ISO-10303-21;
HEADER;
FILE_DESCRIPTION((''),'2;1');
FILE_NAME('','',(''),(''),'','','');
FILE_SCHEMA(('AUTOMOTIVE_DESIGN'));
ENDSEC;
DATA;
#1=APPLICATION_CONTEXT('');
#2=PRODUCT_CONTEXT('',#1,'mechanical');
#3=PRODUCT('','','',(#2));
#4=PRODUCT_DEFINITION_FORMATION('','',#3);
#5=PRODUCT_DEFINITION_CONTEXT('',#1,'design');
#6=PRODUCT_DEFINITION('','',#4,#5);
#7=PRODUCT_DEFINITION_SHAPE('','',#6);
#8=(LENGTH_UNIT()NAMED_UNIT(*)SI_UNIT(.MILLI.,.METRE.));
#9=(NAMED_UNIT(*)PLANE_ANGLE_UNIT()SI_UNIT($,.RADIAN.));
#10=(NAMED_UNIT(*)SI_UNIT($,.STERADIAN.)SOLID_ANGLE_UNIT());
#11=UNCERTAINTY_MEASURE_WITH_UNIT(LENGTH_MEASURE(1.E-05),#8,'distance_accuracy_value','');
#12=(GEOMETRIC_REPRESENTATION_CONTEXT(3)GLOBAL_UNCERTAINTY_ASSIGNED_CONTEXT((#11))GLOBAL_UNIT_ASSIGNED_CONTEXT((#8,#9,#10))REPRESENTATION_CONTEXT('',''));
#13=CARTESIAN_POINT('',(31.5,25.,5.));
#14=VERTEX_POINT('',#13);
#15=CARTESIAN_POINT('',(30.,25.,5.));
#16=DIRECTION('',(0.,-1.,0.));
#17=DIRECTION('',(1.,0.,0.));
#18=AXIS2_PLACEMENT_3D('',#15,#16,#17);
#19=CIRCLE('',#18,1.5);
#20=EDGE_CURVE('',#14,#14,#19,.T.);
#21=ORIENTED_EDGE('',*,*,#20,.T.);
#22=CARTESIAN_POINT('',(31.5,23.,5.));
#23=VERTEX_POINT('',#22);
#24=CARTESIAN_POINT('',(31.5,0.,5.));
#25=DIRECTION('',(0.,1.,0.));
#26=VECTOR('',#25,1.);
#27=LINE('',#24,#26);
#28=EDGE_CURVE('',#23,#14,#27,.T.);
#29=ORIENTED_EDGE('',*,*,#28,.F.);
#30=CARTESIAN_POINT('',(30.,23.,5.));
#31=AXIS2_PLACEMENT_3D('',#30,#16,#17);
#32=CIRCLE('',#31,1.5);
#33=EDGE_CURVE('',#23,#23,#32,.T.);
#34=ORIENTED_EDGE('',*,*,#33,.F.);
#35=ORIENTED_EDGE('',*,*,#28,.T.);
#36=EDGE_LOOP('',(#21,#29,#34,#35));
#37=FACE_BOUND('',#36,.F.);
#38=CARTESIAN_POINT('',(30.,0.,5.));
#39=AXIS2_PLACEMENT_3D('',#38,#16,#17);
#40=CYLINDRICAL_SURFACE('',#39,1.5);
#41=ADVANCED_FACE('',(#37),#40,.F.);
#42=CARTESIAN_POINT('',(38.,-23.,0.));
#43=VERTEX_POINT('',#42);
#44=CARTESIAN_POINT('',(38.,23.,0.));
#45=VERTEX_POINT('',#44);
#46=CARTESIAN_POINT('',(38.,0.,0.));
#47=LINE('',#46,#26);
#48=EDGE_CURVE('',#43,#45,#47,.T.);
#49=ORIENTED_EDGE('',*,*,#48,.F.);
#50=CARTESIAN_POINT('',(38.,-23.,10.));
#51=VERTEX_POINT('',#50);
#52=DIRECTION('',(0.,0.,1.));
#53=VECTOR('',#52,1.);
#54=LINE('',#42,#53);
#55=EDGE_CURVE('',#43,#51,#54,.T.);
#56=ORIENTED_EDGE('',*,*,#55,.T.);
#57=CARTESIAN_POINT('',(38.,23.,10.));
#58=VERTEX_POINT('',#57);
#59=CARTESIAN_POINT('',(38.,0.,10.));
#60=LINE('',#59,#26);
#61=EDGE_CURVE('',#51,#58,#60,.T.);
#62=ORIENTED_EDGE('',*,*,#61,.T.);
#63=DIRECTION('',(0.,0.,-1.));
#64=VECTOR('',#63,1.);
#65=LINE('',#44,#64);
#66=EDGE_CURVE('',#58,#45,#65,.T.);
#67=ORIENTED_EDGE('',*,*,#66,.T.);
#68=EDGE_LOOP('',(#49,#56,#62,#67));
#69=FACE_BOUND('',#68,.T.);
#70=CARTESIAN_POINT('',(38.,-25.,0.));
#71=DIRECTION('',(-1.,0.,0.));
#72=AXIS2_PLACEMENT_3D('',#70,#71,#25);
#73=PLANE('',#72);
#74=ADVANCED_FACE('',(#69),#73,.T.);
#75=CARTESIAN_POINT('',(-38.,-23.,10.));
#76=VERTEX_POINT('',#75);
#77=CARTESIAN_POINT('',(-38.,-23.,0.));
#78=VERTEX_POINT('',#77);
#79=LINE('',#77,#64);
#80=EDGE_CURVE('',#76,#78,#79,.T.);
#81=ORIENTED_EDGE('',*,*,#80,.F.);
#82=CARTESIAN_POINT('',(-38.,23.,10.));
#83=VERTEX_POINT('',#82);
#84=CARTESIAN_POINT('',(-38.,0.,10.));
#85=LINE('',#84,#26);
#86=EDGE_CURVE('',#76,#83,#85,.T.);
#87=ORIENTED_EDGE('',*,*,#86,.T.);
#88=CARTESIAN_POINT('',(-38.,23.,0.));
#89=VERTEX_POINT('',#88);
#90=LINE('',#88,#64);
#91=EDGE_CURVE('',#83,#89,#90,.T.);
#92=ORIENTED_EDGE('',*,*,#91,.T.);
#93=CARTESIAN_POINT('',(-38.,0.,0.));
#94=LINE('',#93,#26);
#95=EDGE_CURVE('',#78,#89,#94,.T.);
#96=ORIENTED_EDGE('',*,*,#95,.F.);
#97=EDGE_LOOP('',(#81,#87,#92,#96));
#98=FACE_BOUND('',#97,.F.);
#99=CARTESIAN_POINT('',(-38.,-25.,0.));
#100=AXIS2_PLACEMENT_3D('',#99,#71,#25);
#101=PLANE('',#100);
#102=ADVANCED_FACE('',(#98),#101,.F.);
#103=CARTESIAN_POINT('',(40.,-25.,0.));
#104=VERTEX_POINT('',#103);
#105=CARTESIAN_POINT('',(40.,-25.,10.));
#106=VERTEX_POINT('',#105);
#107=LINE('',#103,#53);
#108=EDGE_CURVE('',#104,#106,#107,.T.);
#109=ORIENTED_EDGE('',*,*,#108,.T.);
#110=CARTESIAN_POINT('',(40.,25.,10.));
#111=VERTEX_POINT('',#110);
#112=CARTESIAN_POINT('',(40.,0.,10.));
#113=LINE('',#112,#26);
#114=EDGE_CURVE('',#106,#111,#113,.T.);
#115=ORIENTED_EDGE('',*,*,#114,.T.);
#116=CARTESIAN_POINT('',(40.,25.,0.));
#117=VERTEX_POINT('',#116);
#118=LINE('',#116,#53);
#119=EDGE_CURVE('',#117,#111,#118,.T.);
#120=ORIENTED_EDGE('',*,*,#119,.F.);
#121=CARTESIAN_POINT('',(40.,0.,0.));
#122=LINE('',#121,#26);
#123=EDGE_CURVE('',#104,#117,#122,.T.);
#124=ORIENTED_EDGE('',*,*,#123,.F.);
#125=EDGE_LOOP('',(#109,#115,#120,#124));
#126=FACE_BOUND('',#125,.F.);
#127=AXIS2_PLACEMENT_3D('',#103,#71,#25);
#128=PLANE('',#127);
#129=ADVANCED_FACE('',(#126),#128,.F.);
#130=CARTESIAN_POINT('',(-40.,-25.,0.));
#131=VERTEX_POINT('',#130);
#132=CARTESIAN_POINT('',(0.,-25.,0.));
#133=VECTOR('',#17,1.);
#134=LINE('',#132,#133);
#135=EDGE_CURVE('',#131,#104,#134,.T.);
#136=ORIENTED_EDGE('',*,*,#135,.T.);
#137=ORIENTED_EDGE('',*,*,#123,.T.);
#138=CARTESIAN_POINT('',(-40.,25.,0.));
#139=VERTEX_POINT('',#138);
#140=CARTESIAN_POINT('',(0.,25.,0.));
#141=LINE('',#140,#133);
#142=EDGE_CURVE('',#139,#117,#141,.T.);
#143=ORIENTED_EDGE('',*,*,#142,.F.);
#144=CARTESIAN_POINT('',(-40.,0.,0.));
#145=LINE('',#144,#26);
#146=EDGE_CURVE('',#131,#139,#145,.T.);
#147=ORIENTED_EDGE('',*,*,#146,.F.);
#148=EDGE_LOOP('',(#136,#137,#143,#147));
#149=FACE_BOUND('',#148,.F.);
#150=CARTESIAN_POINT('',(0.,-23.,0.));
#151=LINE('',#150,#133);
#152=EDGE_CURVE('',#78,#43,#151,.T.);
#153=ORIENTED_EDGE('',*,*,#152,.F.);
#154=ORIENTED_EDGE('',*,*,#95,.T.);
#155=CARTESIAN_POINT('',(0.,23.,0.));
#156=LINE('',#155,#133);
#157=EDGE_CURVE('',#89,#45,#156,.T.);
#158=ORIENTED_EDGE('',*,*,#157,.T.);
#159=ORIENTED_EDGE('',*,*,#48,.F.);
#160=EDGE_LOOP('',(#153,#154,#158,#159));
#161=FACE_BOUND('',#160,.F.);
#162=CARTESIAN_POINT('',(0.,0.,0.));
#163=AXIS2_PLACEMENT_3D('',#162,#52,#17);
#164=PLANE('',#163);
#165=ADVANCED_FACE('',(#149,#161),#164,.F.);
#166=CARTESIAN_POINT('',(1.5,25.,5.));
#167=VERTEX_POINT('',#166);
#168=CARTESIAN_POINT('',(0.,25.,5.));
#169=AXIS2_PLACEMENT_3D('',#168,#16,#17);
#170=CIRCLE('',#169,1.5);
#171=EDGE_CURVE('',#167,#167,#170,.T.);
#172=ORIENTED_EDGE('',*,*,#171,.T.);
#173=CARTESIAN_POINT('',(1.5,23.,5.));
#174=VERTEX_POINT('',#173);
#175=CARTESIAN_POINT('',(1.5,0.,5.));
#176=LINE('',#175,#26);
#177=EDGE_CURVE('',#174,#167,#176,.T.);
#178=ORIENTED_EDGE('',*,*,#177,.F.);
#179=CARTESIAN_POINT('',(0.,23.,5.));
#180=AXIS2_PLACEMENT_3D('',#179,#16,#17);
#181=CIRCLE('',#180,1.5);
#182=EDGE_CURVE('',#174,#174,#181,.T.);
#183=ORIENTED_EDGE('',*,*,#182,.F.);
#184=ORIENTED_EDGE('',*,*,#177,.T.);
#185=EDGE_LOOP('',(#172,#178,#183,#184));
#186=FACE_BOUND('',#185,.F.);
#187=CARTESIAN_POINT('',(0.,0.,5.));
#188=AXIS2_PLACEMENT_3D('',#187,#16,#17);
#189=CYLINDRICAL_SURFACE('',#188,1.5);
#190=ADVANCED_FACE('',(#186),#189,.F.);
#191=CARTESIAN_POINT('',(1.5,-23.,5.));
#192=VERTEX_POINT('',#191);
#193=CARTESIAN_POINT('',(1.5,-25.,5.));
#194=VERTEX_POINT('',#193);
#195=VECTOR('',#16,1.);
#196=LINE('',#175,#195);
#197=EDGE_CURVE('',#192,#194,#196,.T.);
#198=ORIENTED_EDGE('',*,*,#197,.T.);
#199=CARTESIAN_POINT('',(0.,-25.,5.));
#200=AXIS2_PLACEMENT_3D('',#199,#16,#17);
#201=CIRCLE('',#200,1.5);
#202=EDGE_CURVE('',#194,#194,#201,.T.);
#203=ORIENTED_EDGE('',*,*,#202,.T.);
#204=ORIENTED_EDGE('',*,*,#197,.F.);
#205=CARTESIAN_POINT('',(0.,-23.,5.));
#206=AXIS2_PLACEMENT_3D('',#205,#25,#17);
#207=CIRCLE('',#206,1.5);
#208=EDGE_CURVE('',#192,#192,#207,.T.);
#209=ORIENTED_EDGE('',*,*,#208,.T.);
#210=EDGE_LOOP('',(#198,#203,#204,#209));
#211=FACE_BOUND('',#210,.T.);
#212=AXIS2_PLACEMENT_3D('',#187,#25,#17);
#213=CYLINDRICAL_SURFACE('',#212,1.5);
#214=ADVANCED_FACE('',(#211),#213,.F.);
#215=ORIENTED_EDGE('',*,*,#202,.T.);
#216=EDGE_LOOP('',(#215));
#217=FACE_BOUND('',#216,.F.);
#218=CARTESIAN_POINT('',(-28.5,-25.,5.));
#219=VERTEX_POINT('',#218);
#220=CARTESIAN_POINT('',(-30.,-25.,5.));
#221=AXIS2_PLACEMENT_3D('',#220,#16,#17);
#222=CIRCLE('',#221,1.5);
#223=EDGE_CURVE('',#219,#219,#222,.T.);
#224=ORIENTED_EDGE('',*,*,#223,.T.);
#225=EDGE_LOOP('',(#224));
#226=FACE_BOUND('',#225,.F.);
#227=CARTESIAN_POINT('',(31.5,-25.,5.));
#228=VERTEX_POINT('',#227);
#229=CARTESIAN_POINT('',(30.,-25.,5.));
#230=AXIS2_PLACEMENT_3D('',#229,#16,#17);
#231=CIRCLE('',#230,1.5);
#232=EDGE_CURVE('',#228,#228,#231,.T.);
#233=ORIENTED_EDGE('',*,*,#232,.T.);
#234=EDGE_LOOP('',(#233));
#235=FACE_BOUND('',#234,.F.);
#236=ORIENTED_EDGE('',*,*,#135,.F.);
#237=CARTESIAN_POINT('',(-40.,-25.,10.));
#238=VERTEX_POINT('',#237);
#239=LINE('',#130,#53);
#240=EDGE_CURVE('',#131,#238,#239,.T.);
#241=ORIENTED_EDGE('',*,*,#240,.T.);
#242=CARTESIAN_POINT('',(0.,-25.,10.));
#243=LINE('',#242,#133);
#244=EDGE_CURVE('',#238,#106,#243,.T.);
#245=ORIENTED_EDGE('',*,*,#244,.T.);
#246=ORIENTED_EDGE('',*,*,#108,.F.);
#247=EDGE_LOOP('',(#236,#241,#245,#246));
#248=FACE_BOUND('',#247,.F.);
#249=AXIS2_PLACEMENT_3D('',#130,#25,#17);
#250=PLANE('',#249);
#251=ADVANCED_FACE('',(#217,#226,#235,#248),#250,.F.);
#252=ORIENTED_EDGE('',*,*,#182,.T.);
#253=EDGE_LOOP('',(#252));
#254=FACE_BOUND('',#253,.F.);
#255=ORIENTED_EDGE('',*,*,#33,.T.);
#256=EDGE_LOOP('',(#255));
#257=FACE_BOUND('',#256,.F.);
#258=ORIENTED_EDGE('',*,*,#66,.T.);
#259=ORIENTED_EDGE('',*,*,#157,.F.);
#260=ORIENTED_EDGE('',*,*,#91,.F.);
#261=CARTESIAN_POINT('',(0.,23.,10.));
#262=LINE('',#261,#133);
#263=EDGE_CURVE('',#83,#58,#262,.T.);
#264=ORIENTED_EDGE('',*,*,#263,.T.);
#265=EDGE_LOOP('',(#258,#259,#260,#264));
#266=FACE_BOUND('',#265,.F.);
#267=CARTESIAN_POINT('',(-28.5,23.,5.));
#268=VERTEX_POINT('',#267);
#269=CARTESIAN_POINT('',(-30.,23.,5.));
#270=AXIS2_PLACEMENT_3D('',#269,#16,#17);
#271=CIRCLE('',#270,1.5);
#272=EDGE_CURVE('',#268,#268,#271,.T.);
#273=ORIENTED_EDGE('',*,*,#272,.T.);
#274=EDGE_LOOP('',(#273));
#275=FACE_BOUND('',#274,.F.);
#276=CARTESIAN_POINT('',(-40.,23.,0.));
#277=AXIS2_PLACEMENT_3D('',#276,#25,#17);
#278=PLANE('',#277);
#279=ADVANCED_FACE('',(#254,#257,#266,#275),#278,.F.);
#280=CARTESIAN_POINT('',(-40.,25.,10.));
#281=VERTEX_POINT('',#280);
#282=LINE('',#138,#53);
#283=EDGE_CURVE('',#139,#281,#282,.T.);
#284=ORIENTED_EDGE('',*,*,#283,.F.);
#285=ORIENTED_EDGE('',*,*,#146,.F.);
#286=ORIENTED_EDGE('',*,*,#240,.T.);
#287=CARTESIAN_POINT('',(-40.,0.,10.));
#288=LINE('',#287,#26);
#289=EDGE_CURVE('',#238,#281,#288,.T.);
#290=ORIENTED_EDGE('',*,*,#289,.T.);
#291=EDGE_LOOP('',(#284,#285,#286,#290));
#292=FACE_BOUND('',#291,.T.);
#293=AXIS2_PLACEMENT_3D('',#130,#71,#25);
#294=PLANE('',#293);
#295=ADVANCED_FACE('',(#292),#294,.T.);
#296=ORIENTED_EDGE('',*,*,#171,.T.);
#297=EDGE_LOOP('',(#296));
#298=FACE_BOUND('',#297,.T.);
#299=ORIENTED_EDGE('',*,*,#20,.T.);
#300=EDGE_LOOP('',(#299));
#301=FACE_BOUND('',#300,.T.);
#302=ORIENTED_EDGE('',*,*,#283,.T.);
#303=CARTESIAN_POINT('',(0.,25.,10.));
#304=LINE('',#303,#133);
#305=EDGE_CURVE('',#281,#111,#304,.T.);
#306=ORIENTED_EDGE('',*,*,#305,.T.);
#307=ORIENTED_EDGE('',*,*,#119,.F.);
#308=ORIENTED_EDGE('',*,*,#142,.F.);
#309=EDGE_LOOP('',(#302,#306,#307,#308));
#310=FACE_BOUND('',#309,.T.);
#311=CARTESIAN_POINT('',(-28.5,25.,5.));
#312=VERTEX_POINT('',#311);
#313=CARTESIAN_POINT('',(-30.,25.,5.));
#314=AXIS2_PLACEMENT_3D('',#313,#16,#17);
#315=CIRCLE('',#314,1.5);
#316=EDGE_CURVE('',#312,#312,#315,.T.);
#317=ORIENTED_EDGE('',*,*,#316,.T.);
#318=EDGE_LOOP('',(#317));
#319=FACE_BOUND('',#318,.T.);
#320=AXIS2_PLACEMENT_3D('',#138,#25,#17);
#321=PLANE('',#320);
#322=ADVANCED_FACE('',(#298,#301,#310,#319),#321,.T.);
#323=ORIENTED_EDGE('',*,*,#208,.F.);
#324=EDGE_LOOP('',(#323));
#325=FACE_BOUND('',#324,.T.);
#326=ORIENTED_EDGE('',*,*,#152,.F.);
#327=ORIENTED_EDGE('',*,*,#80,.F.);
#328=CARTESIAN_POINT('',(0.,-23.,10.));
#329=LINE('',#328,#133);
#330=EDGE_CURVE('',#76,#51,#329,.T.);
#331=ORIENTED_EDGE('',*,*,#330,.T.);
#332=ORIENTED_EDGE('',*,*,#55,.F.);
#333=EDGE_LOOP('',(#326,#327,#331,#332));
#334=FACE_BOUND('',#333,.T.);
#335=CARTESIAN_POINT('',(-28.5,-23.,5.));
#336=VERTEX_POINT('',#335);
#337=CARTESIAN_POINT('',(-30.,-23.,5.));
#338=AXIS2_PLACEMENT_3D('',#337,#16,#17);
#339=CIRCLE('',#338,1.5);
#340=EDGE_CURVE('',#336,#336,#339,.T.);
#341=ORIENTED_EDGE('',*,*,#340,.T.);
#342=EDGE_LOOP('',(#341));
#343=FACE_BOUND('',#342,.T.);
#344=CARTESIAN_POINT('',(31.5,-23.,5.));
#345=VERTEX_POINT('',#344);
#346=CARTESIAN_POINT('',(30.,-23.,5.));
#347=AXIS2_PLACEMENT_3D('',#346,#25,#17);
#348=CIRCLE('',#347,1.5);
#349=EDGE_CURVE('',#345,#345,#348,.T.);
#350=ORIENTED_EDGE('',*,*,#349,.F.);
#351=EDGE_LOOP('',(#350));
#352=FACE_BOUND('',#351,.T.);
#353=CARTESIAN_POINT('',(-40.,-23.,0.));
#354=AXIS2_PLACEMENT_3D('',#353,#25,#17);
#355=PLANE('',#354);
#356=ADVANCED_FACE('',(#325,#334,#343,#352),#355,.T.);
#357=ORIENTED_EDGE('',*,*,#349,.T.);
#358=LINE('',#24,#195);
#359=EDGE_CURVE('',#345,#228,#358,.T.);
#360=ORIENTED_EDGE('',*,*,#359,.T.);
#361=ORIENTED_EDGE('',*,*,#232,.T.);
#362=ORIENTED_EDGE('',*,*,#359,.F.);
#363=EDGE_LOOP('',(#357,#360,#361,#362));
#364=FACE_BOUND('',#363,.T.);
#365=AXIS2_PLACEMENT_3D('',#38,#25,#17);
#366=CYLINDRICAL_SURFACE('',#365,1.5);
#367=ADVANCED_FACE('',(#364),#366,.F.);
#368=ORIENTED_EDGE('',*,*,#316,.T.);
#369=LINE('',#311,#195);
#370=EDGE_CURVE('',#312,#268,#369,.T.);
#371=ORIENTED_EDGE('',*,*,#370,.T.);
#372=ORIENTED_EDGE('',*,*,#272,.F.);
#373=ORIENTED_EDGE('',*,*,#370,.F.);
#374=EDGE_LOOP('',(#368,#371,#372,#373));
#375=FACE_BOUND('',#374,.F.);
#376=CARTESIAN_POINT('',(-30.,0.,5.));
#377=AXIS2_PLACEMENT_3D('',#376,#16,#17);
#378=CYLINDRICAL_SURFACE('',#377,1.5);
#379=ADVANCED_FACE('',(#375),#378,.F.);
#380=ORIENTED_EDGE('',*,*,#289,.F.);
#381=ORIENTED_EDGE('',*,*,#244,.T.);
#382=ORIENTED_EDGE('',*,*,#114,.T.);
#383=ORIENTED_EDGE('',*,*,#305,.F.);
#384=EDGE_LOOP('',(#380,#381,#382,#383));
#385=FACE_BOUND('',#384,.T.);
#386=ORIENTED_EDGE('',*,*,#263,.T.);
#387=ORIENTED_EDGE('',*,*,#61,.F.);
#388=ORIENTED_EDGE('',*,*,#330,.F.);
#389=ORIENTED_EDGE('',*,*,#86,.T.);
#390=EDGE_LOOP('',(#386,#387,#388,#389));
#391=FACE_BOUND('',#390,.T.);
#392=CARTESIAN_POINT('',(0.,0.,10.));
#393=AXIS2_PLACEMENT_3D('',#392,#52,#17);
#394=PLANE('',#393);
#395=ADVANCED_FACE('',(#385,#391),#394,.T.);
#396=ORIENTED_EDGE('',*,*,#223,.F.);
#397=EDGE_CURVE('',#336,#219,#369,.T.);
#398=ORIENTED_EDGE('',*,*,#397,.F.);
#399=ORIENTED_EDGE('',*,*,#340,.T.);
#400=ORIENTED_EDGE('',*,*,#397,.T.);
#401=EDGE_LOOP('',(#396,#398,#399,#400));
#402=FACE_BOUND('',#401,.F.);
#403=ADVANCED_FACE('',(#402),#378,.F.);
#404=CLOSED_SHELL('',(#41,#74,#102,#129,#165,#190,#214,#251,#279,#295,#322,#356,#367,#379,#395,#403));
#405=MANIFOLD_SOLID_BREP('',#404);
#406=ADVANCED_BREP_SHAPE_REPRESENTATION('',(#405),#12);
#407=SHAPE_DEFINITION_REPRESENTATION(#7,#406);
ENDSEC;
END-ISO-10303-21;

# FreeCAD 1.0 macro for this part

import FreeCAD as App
import Part
import Sketcher
from FreeCAD import Vector
Q = App.Units.Quantity


def faces_at(feature, points):
    """Names of the faces that lie closest to the given points."""
    faces = feature.Shape.Faces
    near = lambda p: min(range(len(faces)), key=lambda i: faces[i].distToShape(Part.Vertex(*p))[0])
    return sorted({f"Face{near(p) + 1}" for p in points})

doc = App.newDocument("Part")
body = doc.addObject("PartDesign::Body", "Body")

sketch1 = doc.addObject("Sketcher::SketchObject", "Sketch")
body.addObject(sketch1)
sketch1.AttachmentSupport = (doc.XY_Plane, [""])
sketch1.MapMode = "FlatFace"
sketch1.addGeometry([
    Part.LineSegment(Vector(-40, 25, 0), Vector(-40, -25, 0)),
    Part.LineSegment(Vector(-40, -25, 0), Vector(40, -25, 0)),
    Part.LineSegment(Vector(40, -25, 0), Vector(40, 25, 0)),
    Part.LineSegment(Vector(40, 25, 0), Vector(-40, 25, 0)),
], False)
sketch1.addConstraint([
    Sketcher.Constraint("Coincident", 0, 2, 1, 1),
    Sketcher.Constraint("Coincident", 1, 2, 2, 1),
    Sketcher.Constraint("Coincident", 2, 2, 3, 1),
    Sketcher.Constraint("Coincident", 3, 2, 0, 1),
    Sketcher.Constraint("Vertical", 0),
    Sketcher.Constraint("Horizontal", 1),
    Sketcher.Constraint("Vertical", 2),
    Sketcher.Constraint("Horizontal", 3),
    Sketcher.Constraint("Symmetric", 0, 2, 2, 2, -1, 1),
    Sketcher.Constraint("DistanceX", 1, 1, 1, 2, Q("80 mm")),
    Sketcher.Constraint("DistanceY", 0, 2, 0, 1, Q("50 mm")),
])
pad1 = doc.addObject("PartDesign::Pad", "Pad")
body.addObject(pad1)
pad1.Profile = sketch1
pad1.Length = 10
doc.recompute()

thickness = doc.addObject("PartDesign::Thickness", "Thickness")
body.addObject(thickness)
thickness.Base = (pad1, faces_at(pad1, [(0, 0, 10), (0, 0, 0)]))
thickness.Value = 2
thickness.Reversed = True
thickness.Join = "Arc"

sketch2 = doc.addObject("Sketcher::SketchObject", "Sketch001")
body.addObject(sketch2)
sketch2.AttachmentSupport = (doc.XZ_Plane, [""])
sketch2.MapMode = "FlatFace"
sketch2.addGeometry([
    Part.Circle(Vector(0, 5, 0), Vector(0, 0, 1), 1.5),
    Part.Circle(Vector(30, 5, 0), Vector(0, 0, 1), 1.5),
    Part.Circle(Vector(-30, 5, 0), Vector(0, 0, 1), 1.5),
], False)
sketch2.addConstraint([
    Sketcher.Constraint("Equal", 0, 1),
    Sketcher.Constraint("Equal", 1, 2),
    Sketcher.Constraint("Symmetric", 1, 3, 2, 3, -2),
    Sketcher.Constraint("PointOnObject", 0, 3, -2),
    Sketcher.Constraint("Horizontal", 0, 3, 1, 3),
    Sketcher.Constraint("Diameter", 0, Q("3 mm")),
    Sketcher.Constraint("DistanceY", -1, 1, 0, 3, Q("5 mm")),
    Sketcher.Constraint("DistanceX", -1, 1, 1, 3, Q("30 mm")),
])
pocket1 = doc.addObject("PartDesign::Pocket", "Pocket")
body.addObject(pocket1)
pocket1.Profile = sketch2
pocket1.Length = 50
pocket1.Midplane = True

doc.recompute()
